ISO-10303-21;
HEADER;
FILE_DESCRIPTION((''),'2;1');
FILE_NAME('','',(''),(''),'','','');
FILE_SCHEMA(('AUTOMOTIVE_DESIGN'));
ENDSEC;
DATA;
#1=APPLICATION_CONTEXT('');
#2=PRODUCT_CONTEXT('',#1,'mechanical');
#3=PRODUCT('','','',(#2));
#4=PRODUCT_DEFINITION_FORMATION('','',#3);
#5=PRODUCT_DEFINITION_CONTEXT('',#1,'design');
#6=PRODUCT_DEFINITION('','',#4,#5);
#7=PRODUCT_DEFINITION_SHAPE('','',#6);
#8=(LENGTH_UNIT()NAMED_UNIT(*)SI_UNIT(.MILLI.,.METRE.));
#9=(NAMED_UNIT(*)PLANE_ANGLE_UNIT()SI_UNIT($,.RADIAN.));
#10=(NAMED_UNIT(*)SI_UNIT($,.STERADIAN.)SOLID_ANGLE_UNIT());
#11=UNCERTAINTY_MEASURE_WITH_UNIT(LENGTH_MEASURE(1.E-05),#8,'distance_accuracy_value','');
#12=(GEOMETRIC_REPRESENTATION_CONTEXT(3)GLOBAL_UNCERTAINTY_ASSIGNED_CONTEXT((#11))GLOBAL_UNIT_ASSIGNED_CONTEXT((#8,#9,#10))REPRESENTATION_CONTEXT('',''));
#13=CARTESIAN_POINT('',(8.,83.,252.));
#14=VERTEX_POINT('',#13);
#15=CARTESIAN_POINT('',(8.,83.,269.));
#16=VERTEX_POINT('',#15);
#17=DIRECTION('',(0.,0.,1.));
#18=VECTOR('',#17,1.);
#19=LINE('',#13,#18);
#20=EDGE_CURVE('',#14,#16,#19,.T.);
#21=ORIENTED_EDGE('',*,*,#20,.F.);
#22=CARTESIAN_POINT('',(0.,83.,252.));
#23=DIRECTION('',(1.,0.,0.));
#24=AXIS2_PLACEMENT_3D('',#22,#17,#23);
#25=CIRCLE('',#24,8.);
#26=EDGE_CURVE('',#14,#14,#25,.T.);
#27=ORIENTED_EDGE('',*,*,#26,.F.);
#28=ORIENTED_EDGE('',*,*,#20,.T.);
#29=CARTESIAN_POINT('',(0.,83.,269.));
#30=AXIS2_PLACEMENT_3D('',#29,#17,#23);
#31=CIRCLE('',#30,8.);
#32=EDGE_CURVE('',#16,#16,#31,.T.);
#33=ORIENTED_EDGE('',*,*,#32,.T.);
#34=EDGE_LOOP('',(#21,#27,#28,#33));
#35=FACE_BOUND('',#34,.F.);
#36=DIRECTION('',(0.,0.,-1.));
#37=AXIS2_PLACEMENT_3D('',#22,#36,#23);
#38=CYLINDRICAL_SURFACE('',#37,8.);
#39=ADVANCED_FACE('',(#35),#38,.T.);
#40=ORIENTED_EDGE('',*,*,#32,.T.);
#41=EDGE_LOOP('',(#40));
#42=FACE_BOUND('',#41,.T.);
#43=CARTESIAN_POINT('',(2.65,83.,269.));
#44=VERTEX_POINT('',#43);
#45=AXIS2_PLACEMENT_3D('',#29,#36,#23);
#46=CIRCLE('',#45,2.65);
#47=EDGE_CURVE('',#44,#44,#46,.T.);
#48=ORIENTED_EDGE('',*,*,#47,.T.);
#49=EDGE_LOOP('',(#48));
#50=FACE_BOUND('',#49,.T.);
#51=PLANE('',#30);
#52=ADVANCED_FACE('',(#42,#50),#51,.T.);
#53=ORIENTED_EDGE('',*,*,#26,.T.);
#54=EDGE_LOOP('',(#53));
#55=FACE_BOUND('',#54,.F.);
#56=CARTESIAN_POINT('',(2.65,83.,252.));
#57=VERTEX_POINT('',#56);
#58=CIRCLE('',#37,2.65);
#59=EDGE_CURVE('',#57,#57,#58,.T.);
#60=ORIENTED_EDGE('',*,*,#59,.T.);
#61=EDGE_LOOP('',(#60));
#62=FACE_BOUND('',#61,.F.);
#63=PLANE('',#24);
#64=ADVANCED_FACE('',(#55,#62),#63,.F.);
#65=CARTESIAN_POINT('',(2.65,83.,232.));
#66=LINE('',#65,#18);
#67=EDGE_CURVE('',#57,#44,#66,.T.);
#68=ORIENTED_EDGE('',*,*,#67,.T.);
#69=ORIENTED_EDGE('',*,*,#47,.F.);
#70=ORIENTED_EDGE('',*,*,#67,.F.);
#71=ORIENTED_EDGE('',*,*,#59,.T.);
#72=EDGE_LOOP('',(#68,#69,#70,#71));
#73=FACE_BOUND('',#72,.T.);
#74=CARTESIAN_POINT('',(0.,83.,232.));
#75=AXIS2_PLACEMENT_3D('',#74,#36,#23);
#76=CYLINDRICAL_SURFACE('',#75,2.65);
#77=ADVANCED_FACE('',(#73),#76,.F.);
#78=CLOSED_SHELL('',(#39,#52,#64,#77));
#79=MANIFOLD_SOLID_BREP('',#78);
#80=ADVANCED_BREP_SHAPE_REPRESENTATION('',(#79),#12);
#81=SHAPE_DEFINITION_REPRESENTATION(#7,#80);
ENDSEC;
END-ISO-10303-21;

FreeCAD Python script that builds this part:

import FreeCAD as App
import Part
import Sketcher

doc = App.newDocument("Part")
body = doc.addObject("PartDesign::Body", "Body")

# Sketch on XY plane
sketch1 = body.newObject("Sketcher::SketchObject", "Sketch")
sketch1.AttachmentSupport = (doc.getObject("XY_Plane"), [""])
sketch1.MapMode = "FlatFace"
sketch1.AttachmentOffset = App.Placement(App.Vector(0, 0, 232), App.Rotation())
sketch1.addGeometry(Part.Circle(App.Vector(0, 83, 0), App.Vector(0, 0, 1), 2.6), False)
sketch1.addConstraint(Sketcher.Constraint("PointOnObject", 0, 3, -2))
sketch1.addConstraint(Sketcher.Constraint("Diameter", 0, 5.3))
sketch1.addConstraint(Sketcher.Constraint("DistanceY", -1, 1, 0, 3, 83.0))
pad1 = body.newObject("PartDesign::Pad", "Pad")
pad1.Profile = sketch1
pad1.Length = 40
body2 = doc.addObject("PartDesign::Body", "Body001")

# Sketch on XY plane
sketch2 = body2.newObject("Sketcher::SketchObject", "Sketch001")
sketch2.AttachmentSupport = (doc.getObject("XY_Plane001"), [""])
sketch2.MapMode = "FlatFace"
sketch2.AttachmentOffset = App.Placement(App.Vector(0, 0, 252), App.Rotation())
sketch2.addGeometry(Part.Circle(App.Vector(0, 83, 0), App.Vector(0, 0, 1), 8), False)
sketch2.addConstraint(Sketcher.Constraint("PointOnObject", 0, 3, -2))
sketch2.addConstraint(Sketcher.Constraint("Diameter", 0, 16.0))
sketch2.addConstraint(Sketcher.Constraint("DistanceY", -1, 1, 0, 3, 83.0))
pad2 = body2.newObject("PartDesign::Pad", "Pad001")
pad2.Profile = sketch2
pad2.Length = 17
doc.recompute()

boolean = body2.newObject("PartDesign::Boolean", "Boolean")
boolean.Type = "Cut"
boolean.addObjects([body])

doc.recompute()
